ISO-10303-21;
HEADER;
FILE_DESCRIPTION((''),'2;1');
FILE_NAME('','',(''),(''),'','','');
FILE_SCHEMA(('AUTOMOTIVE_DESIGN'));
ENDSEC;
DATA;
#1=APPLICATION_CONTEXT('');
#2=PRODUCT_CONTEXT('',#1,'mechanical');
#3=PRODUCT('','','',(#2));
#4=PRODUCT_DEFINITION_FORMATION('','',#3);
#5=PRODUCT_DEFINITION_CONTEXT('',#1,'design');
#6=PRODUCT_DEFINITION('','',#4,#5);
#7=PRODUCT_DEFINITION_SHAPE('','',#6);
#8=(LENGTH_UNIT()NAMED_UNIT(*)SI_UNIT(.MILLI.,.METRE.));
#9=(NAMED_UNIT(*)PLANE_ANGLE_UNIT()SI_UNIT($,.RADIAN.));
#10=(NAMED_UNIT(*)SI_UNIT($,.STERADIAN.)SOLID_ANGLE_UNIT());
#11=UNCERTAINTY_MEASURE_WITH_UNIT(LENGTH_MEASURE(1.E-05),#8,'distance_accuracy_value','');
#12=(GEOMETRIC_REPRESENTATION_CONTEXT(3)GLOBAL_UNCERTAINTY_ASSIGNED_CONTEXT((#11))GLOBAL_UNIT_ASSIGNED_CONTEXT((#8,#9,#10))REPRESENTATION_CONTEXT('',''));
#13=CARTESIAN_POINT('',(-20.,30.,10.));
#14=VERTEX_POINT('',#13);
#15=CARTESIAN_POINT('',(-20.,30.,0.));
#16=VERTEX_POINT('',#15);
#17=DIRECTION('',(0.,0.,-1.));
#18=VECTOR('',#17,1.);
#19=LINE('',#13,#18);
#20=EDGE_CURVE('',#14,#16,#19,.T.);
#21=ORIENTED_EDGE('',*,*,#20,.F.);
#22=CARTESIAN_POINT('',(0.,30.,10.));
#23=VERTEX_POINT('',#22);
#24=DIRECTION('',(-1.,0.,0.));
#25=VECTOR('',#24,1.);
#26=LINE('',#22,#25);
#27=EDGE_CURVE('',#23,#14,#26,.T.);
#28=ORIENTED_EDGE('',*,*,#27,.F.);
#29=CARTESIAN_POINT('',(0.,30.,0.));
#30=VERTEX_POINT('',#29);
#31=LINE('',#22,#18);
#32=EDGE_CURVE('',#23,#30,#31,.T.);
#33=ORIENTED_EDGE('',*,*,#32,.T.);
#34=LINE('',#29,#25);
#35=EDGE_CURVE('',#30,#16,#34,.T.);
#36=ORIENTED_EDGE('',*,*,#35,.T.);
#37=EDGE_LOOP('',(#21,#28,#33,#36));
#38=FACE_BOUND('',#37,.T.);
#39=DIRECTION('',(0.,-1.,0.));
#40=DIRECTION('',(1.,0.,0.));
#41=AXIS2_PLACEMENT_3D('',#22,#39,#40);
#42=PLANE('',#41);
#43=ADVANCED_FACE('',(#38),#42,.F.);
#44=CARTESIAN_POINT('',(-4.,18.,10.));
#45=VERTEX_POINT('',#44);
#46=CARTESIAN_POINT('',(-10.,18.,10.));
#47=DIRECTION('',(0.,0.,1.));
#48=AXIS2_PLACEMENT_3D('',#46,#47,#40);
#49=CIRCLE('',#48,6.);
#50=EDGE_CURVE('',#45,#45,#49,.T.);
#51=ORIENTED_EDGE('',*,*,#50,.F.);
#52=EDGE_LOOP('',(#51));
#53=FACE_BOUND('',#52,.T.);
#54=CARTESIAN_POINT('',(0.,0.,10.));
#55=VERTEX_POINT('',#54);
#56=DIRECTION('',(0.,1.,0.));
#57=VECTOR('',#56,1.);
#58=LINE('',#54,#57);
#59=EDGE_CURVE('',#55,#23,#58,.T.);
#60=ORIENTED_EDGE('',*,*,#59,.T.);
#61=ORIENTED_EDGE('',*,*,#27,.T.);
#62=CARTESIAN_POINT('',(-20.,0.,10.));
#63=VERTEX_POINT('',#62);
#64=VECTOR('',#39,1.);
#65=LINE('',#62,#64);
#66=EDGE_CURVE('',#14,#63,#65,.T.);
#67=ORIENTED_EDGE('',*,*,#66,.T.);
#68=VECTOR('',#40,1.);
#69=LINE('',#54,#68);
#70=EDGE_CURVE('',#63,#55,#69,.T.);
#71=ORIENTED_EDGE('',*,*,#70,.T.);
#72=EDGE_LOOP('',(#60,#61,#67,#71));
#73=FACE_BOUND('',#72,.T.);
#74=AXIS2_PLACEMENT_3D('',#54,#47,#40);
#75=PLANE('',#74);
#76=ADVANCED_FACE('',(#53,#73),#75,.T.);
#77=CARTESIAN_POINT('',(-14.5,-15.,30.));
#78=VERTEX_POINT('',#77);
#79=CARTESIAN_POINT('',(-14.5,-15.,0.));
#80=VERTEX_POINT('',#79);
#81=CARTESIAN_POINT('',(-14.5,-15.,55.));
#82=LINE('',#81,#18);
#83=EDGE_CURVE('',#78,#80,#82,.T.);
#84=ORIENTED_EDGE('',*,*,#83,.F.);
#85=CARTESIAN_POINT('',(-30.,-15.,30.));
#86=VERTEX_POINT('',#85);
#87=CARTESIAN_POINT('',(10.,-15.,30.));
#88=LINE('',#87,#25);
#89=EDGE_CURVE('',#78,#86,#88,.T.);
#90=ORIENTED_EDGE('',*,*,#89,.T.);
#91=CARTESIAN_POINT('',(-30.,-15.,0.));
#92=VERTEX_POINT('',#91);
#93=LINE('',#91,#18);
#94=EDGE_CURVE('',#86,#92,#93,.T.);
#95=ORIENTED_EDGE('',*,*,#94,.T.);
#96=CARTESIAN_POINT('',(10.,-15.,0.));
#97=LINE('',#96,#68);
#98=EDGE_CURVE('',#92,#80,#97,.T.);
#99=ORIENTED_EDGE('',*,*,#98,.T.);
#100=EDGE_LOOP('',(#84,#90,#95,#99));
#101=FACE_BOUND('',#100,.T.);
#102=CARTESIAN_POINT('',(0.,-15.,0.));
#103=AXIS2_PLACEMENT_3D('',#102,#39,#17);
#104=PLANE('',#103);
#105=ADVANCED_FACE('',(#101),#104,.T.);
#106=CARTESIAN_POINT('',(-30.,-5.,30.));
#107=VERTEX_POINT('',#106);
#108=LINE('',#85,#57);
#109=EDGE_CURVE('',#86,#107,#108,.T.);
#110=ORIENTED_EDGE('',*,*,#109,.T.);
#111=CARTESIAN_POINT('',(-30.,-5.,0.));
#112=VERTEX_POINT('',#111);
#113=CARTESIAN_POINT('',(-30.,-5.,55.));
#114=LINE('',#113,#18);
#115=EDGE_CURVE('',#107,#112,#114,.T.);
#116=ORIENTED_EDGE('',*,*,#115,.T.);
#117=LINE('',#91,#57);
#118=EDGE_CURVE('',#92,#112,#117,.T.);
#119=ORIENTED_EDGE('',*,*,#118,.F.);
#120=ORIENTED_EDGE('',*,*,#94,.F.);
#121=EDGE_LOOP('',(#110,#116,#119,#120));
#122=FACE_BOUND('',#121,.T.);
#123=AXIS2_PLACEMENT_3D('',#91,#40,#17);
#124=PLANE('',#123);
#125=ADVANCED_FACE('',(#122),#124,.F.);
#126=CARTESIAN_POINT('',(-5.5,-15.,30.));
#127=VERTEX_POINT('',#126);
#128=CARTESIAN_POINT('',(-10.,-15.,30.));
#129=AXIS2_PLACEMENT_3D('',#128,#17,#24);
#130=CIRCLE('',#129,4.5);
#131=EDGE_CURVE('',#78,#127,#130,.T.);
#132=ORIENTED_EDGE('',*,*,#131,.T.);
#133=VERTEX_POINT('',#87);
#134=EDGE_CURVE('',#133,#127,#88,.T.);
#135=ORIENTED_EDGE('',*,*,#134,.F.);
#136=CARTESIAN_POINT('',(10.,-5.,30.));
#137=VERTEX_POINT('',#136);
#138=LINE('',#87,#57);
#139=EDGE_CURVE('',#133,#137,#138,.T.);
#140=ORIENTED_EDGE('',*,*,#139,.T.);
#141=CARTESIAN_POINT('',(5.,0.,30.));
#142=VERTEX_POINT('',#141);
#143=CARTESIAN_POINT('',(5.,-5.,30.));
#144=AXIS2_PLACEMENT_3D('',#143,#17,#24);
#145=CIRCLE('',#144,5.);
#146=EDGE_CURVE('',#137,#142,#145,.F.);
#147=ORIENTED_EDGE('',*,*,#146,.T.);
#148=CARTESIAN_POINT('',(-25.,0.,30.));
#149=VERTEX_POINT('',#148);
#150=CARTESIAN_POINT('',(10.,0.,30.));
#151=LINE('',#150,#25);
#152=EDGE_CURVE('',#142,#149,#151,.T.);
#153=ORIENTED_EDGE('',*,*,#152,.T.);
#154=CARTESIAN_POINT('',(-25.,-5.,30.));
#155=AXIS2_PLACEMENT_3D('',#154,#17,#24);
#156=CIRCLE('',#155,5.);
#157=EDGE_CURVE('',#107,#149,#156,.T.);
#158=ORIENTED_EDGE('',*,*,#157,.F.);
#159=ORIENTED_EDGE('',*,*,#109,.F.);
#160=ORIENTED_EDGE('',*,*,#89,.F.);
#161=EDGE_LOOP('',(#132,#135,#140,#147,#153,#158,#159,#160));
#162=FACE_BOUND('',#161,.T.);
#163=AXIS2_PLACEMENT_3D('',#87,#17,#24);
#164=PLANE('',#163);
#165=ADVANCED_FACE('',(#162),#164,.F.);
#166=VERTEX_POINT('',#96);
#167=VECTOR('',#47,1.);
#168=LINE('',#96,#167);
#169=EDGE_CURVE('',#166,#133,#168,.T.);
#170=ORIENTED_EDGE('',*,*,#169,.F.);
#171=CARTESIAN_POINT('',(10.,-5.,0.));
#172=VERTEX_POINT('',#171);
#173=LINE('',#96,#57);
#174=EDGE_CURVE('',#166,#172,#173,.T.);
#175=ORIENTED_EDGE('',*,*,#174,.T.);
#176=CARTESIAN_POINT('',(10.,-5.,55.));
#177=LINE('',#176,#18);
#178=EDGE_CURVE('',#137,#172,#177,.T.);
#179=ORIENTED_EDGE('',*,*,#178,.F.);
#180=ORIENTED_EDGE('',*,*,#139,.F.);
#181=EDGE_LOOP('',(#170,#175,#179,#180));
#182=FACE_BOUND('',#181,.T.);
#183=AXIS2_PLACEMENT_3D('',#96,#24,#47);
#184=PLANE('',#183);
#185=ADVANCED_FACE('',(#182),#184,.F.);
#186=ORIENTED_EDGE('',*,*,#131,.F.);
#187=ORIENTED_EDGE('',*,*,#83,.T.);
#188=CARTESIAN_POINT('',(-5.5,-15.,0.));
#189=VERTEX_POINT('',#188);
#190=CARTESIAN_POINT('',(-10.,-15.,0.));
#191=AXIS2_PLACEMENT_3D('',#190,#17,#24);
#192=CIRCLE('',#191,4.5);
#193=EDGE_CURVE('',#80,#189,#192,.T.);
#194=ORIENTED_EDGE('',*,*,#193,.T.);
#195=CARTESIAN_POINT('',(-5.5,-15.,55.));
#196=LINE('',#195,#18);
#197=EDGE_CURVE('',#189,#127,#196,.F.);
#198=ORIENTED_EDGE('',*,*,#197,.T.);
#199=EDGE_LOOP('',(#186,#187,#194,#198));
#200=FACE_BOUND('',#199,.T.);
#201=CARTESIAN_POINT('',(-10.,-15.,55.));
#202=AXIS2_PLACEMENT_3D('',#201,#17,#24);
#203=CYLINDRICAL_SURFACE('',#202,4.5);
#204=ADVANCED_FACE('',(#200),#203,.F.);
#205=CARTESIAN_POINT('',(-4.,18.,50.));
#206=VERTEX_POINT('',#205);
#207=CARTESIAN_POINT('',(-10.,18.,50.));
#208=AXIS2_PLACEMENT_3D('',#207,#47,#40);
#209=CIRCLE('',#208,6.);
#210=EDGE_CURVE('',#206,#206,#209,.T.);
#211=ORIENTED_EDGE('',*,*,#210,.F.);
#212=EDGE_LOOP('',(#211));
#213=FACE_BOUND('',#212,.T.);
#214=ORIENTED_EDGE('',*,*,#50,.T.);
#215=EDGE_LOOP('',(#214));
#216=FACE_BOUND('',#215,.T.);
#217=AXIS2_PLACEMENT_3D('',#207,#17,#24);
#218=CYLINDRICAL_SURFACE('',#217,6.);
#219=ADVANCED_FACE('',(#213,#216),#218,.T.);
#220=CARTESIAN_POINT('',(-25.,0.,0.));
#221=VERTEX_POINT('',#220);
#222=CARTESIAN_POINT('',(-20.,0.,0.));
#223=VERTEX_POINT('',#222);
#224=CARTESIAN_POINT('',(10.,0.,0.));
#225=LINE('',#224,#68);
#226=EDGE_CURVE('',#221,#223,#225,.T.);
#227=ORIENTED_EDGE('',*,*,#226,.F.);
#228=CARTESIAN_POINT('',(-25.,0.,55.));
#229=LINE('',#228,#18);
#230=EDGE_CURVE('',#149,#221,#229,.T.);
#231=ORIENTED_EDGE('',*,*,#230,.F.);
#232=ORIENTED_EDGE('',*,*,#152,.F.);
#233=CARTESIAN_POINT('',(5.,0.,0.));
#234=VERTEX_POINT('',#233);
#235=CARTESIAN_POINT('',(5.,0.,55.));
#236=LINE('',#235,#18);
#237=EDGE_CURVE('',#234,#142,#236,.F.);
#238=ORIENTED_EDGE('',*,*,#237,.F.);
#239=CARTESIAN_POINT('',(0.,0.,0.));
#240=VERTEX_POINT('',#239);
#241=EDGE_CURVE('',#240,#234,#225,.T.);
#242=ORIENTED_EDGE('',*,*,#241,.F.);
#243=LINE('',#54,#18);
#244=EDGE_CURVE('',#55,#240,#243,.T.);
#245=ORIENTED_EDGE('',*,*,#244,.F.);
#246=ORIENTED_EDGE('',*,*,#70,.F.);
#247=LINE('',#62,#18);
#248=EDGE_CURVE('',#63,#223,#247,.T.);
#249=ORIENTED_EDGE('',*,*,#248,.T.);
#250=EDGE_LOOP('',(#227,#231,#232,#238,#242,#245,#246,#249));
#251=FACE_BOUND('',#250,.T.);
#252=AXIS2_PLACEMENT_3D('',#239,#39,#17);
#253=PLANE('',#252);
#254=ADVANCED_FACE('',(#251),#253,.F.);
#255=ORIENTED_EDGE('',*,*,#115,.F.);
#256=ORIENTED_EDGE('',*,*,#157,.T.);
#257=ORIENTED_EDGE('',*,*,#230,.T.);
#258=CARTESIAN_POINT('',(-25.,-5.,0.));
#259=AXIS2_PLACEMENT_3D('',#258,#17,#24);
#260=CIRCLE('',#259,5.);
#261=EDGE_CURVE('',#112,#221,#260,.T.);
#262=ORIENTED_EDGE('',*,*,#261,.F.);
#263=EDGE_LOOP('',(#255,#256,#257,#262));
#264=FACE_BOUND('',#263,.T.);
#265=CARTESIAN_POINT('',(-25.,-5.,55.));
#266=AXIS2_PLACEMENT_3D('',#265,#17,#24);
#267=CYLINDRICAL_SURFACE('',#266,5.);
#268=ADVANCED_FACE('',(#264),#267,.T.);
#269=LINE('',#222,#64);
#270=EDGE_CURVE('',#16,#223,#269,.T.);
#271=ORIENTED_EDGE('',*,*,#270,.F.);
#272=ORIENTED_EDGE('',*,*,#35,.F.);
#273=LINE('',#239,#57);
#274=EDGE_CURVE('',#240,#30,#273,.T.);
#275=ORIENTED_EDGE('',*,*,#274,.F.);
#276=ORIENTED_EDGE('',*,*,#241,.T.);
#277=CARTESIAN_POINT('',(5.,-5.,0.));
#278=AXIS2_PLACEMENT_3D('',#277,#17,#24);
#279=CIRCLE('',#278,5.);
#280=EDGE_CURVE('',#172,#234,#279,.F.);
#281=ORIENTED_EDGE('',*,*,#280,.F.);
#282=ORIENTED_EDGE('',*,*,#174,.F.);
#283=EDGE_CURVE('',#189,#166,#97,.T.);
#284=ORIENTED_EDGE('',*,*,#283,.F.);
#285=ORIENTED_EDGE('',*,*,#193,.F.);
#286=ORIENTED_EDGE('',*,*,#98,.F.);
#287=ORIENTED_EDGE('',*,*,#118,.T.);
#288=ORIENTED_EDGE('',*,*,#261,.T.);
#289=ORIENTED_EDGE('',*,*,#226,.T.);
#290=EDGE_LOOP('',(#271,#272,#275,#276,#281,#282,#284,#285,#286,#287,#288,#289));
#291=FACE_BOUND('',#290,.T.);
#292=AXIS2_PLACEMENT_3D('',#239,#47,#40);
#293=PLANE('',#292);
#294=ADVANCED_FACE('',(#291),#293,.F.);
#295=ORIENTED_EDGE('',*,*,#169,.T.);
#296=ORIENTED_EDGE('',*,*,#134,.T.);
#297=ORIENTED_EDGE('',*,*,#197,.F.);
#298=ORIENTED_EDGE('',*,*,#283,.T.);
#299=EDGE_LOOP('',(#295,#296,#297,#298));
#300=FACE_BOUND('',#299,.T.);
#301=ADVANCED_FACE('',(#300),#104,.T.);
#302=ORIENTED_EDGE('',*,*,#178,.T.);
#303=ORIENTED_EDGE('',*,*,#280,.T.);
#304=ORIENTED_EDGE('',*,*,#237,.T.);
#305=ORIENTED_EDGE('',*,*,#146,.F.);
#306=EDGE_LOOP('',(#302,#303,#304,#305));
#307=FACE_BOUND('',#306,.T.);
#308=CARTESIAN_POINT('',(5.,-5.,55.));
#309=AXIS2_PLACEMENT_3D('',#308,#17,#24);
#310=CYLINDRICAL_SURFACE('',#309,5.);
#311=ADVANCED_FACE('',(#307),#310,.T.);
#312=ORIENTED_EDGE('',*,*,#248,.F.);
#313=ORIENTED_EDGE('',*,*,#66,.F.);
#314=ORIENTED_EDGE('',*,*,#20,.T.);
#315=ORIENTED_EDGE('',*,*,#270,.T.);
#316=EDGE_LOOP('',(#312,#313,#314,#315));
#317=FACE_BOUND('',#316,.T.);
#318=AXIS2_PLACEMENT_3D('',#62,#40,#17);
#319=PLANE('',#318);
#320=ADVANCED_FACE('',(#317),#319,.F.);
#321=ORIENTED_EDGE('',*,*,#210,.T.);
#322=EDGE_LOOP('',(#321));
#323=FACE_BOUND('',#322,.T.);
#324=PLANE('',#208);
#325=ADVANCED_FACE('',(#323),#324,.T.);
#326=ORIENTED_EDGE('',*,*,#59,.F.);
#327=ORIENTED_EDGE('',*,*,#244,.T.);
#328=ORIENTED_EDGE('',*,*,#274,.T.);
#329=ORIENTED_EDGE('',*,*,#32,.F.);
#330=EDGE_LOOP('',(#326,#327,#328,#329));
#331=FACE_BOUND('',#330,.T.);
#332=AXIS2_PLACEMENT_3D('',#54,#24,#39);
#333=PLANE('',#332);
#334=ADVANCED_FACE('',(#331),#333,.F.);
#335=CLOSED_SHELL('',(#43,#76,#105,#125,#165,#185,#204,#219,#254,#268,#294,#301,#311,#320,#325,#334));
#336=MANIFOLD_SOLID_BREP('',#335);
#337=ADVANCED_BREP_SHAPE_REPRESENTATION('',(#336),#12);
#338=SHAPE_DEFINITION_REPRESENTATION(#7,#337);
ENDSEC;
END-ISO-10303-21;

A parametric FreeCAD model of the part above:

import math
import FreeCAD as App
import Part
import Sketcher

V = App.Vector

doc = App.newDocument("Part")
params = doc.addObject("Spreadsheet::Sheet", "Params")
for row, (alias, value) in enumerate([
    ("sketch1_width", "20 mm"),
    ("sketch1_height", "30 mm"),
    ("pad1_length", "10 mm"),
    ("sketch2_diameter", "12 mm"),
    ("pad2_length", "40 mm"),
    ("sketch3_width", "40 mm"),
    ("sketch3_height", "30 mm"),
    ("pad3_length", "15 mm"),
    ("sketch4_diameter", "9 mm"),
    ("pocket1_length", "55 mm"),
    ("sketch5_radius", "5 mm"),
    ("pocket2_length", "55 mm"),
], start=1):
    params.set(f"A{row}", alias)
    params.set(f"B{row}", "=" + value)
    params.setAlias(f"B{row}", alias)

body = doc.addObject("PartDesign::Body", "Body")

sketch1 = doc.addObject("Sketcher::SketchObject", "Sketch")
body.addObject(sketch1)
sketch1.AttachmentSupport = (doc.XY_Plane, [""])
sketch1.MapMode = "FlatFace"
sketch1.addGeometry(Part.LineSegment(V(-20, 30, 0), V(-20, 0, 0)), False)
sketch1.addGeometry(Part.LineSegment(V(-20, 0, 0), V(0, 0, 0)), False)
sketch1.addGeometry(Part.LineSegment(V(0, 0, 0), V(0, 30, 0)), False)
sketch1.addGeometry(Part.LineSegment(V(0, 30, 0), V(-20, 30, 0)), False)
sketch1.addConstraint(Sketcher.Constraint("Coincident", 0, 2, 1, 1))
sketch1.addConstraint(Sketcher.Constraint("Coincident", 1, 2, 2, 1))
sketch1.addConstraint(Sketcher.Constraint("Coincident", 2, 2, 3, 1))
sketch1.addConstraint(Sketcher.Constraint("Coincident", 3, 2, 0, 1))
sketch1.addConstraint(Sketcher.Constraint("Vertical", 0))
sketch1.addConstraint(Sketcher.Constraint("Horizontal", 1))
sketch1.addConstraint(Sketcher.Constraint("Vertical", 2))
sketch1.addConstraint(Sketcher.Constraint("Horizontal", 3))
sketch1.addConstraint(Sketcher.Constraint("Coincident", 1, 2, -1, 1))
sketch1.addConstraint(Sketcher.Constraint("DistanceX", 1, 1, 1, 2, 20.0))
sketch1.addConstraint(Sketcher.Constraint("DistanceY", 0, 2, 0, 1, 30.0))
sketch1.setExpression("Constraints[9]", "Params.sketch1_width")
sketch1.setExpression("Constraints[10]", "Params.sketch1_height")
pad1 = doc.addObject("PartDesign::Pad", "Pad")
body.addObject(pad1)
pad1.Profile = sketch1
pad1.setExpression("Length", "Params.pad1_length")

sketch2 = doc.addObject("Sketcher::SketchObject", "Sketch001")
body.addObject(sketch2)
sketch2.AttachmentSupport = (doc.XY_Plane, [""])
sketch2.MapMode = "FlatFace"
sketch2.AttachmentOffset = App.Placement(V(0, 0, 10), App.Rotation())
sketch2.addGeometry(Part.Circle(V(-10, 18, 0), V(0, 0, 1), 6), False)
sketch2.addConstraint(Sketcher.Constraint("Diameter", 0, 12.0))
sketch2.addConstraint(Sketcher.Constraint("DistanceX", 0, 3, -1, 1, 10.0))
sketch2.addConstraint(Sketcher.Constraint("DistanceY", -1, 1, 0, 3, 18.0))
sketch2.setExpression("Constraints[0]", "Params.sketch2_diameter")
pad2 = doc.addObject("PartDesign::Pad", "Pad001")
body.addObject(pad2)
pad2.Profile = sketch2
pad2.setExpression("Length", "Params.pad2_length")

sketch3 = doc.addObject("Sketcher::SketchObject", "Sketch002")
body.addObject(sketch3)
sketch3.AttachmentSupport = (doc.XZ_Plane, [""])
sketch3.MapMode = "FlatFace"
sketch3.addGeometry(Part.LineSegment(V(-30, 30, 0), V(-30, 0, 0)), False)
sketch3.addGeometry(Part.LineSegment(V(-30, 0, 0), V(10, 0, 0)), False)
sketch3.addGeometry(Part.LineSegment(V(10, 0, 0), V(10, 30, 0)), False)
sketch3.addGeometry(Part.LineSegment(V(10, 30, 0), V(-30, 30, 0)), False)
sketch3.addConstraint(Sketcher.Constraint("Coincident", 0, 2, 1, 1))
sketch3.addConstraint(Sketcher.Constraint("Coincident", 1, 2, 2, 1))
sketch3.addConstraint(Sketcher.Constraint("Coincident", 2, 2, 3, 1))
sketch3.addConstraint(Sketcher.Constraint("Coincident", 3, 2, 0, 1))
sketch3.addConstraint(Sketcher.Constraint("Vertical", 0))
sketch3.addConstraint(Sketcher.Constraint("Horizontal", 1))
sketch3.addConstraint(Sketcher.Constraint("Vertical", 2))
sketch3.addConstraint(Sketcher.Constraint("Horizontal", 3))
sketch3.addConstraint(Sketcher.Constraint("PointOnObject", 0, 2, -1))
sketch3.addConstraint(Sketcher.Constraint("DistanceX", 1, 1, 1, 2, 40.0))
sketch3.addConstraint(Sketcher.Constraint("DistanceY", 0, 2, 0, 1, 30.0))
sketch3.addConstraint(Sketcher.Constraint("DistanceX", 0, 2, -1, 1, 30.0))
sketch3.setExpression("Constraints[9]", "Params.sketch3_width")
sketch3.setExpression("Constraints[10]", "Params.sketch3_height")
pad3 = doc.addObject("PartDesign::Pad", "Pad002")
body.addObject(pad3)
pad3.Profile = sketch3
pad3.setExpression("Length", "Params.pad3_length")

sketch4 = doc.addObject("Sketcher::SketchObject", "Sketch003")
body.addObject(sketch4)
sketch4.AttachmentSupport = (doc.XY_Plane, [""])
sketch4.MapMode = "FlatFace"
sketch4.addGeometry(Part.Circle(V(-10, -15, 0), V(0, 0, 1), 4.5), False)
sketch4.addConstraint(Sketcher.Constraint("Diameter", 0, 9.0))
sketch4.addConstraint(Sketcher.Constraint("DistanceX", 0, 3, -1, 1, 10.0))
sketch4.addConstraint(Sketcher.Constraint("DistanceY", 0, 3, -1, 1, 15.0))
sketch4.setExpression("Constraints[0]", "Params.sketch4_diameter")
pocket1 = doc.addObject("PartDesign::Pocket", "Pocket")
body.addObject(pocket1)
pocket1.Profile = sketch4
pocket1.setExpression("Length", "Params.pocket1_length")
pocket1.Reversed = True

sketch5 = doc.addObject("Sketcher::SketchObject", "Sketch004")
body.addObject(sketch5)
sketch5.AttachmentSupport = (doc.XY_Plane, [""])
sketch5.MapMode = "FlatFace"
sketch5.addGeometry(Part.LineSegment(V(-30, 0, 0), V(-25, 0, 0)), False)
sketch5.addGeometry(Part.ArcOfCircle(Part.Circle(V(-25, -5, 0), V(0, 0, 1), 5), math.radians(90), math.radians(180)), False)
sketch5.addGeometry(Part.LineSegment(V(-30, -5, 0), V(-30, 0, 0)), False)
sketch5.addGeometry(Part.LineSegment(V(10, 0, 0), V(10, -5, 0)), False)
sketch5.addGeometry(Part.ArcOfCircle(Part.Circle(V(5, -5, 0), V(0, 0, 1), 5), math.radians(0), math.radians(90)), False)
sketch5.addGeometry(Part.LineSegment(V(5, 0, 0), V(10, 0, 0)), False)
sketch5.addConstraint(Sketcher.Constraint("Tangent", 0, 2, 1, 1))
sketch5.addConstraint(Sketcher.Constraint("Tangent", 1, 2, 2, 1))
sketch5.addConstraint(Sketcher.Constraint("Coincident", 2, 2, 0, 1))
sketch5.addConstraint(Sketcher.Constraint("Tangent", 3, 2, 4, 1))
sketch5.addConstraint(Sketcher.Constraint("Tangent", 4, 2, 5, 1))
sketch5.addConstraint(Sketcher.Constraint("Coincident", 5, 2, 3, 1))
sketch5.addConstraint(Sketcher.Constraint("Horizontal", 0))
sketch5.addConstraint(Sketcher.Constraint("Vertical", 2))
sketch5.addConstraint(Sketcher.Constraint("Vertical", 3))
sketch5.addConstraint(Sketcher.Constraint("Horizontal", 5))
sketch5.addConstraint(Sketcher.Constraint("Equal", 1, 4))
sketch5.addConstraint(Sketcher.Constraint("PointOnObject", 0, 2, -1))
sketch5.addConstraint(Sketcher.Constraint("PointOnObject", 4, 2, -1))
sketch5.addConstraint(Sketcher.Constraint("Radius", 1, 5.0))
sketch5.addConstraint(Sketcher.Constraint("DistanceX", 1, 3, -1, 1, 25.0))
sketch5.addConstraint(Sketcher.Constraint("DistanceX", -1, 1, 4, 3, 5.0))
sketch5.setExpression("Constraints[13]", "Params.sketch5_radius")
pocket2 = doc.addObject("PartDesign::Pocket", "Pocket001")
body.addObject(pocket2)
pocket2.Profile = sketch5
pocket2.setExpression("Length", "Params.pocket2_length")
pocket2.Reversed = True

doc.recompute()
